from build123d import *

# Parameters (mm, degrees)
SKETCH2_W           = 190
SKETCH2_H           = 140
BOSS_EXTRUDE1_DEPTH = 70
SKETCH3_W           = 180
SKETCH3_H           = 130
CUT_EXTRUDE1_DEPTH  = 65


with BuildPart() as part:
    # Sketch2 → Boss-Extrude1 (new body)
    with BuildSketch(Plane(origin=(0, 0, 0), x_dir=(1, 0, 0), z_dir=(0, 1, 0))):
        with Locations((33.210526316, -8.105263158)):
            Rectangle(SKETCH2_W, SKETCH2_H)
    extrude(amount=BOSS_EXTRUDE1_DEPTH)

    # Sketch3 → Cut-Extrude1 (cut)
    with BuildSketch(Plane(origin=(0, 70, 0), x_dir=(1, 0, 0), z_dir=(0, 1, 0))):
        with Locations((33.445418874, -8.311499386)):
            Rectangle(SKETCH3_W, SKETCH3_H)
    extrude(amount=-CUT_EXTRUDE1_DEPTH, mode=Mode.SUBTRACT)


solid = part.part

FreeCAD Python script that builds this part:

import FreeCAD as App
import Part
import Sketcher

V = App.Vector


def add_polygon(sketch, points):
    """Adds a closed chain of lines whose ends are joined by coincident constraints."""
    first, n = sketch.GeometryCount, len(points)
    for a, b in zip(points, points[1:] + points[:1]):
        sketch.addGeometry(Part.LineSegment(App.Vector(*a, 0), App.Vector(*b, 0)), False)
    for i in range(n):
        sketch.addConstraint(Sketcher.Constraint("Coincident", first + i, 2, first + (i + 1) % n, 1))

doc = App.newDocument("Part")
body = doc.addObject("PartDesign::Body", "Body")

# Sketch on XZ plane
sketch1 = body.newObject("Sketcher::SketchObject", "Sketch")
sketch1.AttachmentSupport = (doc.getObject("XZ_Plane"), [""])
sketch1.MapMode = "FlatFace"
add_polygon(sketch1, [(-62, -62), (-62, 78), (128, 78), (128, -62)])  # lines 0-3
sketch1.addConstraint([
    Sketcher.Constraint("Vertical", 0),
    Sketcher.Constraint("Horizontal", 1),
    Sketcher.Constraint("Vertical", 2),
    Sketcher.Constraint("Horizontal", 3),
    Sketcher.Constraint("DistanceX", 1, 1, 1, 2, 190.0),
    Sketcher.Constraint("DistanceY", 0, 1, 0, 2, 140.0),
    Sketcher.Constraint("DistanceX", 0, 2, -1, 1, 61.789474),
    Sketcher.Constraint("DistanceY", -1, 1, 0, 2, 78.105263),
])
pad1 = body.newObject("PartDesign::Pad", "Pad")
pad1.Profile = sketch1
pad1.Length = 70
pad1.Reversed = True

# Sketch on XZ plane
sketch2 = body.newObject("Sketcher::SketchObject", "Sketch001")
sketch2.AttachmentSupport = (doc.getObject("XZ_Plane"), [""])
sketch2.MapMode = "FlatFace"
sketch2.AttachmentOffset = App.Placement(V(0, 0, -70), App.Rotation())
add_polygon(sketch2, [(-57, -57), (-57, 73), (123, 73), (123, -57)])  # lines 0-3
sketch2.addConstraint([
    Sketcher.Constraint("Vertical", 0),
    Sketcher.Constraint("Horizontal", 1),
    Sketcher.Constraint("Vertical", 2),
    Sketcher.Constraint("Horizontal", 3),
    Sketcher.Constraint("DistanceX", 1, 1, 1, 2, 180.0),
    Sketcher.Constraint("DistanceY", 0, 1, 0, 2, 130.0),
    Sketcher.Constraint("DistanceY", -1, 1, 0, 2, 73.311499),
    Sketcher.Constraint("DistanceX", 0, 2, -1, 1, 56.554581),
])
pocket1 = body.newObject("PartDesign::Pocket", "Pocket")
pocket1.Profile = sketch2
pocket1.Length = 65
pocket1.Reversed = True

doc.recompute()
